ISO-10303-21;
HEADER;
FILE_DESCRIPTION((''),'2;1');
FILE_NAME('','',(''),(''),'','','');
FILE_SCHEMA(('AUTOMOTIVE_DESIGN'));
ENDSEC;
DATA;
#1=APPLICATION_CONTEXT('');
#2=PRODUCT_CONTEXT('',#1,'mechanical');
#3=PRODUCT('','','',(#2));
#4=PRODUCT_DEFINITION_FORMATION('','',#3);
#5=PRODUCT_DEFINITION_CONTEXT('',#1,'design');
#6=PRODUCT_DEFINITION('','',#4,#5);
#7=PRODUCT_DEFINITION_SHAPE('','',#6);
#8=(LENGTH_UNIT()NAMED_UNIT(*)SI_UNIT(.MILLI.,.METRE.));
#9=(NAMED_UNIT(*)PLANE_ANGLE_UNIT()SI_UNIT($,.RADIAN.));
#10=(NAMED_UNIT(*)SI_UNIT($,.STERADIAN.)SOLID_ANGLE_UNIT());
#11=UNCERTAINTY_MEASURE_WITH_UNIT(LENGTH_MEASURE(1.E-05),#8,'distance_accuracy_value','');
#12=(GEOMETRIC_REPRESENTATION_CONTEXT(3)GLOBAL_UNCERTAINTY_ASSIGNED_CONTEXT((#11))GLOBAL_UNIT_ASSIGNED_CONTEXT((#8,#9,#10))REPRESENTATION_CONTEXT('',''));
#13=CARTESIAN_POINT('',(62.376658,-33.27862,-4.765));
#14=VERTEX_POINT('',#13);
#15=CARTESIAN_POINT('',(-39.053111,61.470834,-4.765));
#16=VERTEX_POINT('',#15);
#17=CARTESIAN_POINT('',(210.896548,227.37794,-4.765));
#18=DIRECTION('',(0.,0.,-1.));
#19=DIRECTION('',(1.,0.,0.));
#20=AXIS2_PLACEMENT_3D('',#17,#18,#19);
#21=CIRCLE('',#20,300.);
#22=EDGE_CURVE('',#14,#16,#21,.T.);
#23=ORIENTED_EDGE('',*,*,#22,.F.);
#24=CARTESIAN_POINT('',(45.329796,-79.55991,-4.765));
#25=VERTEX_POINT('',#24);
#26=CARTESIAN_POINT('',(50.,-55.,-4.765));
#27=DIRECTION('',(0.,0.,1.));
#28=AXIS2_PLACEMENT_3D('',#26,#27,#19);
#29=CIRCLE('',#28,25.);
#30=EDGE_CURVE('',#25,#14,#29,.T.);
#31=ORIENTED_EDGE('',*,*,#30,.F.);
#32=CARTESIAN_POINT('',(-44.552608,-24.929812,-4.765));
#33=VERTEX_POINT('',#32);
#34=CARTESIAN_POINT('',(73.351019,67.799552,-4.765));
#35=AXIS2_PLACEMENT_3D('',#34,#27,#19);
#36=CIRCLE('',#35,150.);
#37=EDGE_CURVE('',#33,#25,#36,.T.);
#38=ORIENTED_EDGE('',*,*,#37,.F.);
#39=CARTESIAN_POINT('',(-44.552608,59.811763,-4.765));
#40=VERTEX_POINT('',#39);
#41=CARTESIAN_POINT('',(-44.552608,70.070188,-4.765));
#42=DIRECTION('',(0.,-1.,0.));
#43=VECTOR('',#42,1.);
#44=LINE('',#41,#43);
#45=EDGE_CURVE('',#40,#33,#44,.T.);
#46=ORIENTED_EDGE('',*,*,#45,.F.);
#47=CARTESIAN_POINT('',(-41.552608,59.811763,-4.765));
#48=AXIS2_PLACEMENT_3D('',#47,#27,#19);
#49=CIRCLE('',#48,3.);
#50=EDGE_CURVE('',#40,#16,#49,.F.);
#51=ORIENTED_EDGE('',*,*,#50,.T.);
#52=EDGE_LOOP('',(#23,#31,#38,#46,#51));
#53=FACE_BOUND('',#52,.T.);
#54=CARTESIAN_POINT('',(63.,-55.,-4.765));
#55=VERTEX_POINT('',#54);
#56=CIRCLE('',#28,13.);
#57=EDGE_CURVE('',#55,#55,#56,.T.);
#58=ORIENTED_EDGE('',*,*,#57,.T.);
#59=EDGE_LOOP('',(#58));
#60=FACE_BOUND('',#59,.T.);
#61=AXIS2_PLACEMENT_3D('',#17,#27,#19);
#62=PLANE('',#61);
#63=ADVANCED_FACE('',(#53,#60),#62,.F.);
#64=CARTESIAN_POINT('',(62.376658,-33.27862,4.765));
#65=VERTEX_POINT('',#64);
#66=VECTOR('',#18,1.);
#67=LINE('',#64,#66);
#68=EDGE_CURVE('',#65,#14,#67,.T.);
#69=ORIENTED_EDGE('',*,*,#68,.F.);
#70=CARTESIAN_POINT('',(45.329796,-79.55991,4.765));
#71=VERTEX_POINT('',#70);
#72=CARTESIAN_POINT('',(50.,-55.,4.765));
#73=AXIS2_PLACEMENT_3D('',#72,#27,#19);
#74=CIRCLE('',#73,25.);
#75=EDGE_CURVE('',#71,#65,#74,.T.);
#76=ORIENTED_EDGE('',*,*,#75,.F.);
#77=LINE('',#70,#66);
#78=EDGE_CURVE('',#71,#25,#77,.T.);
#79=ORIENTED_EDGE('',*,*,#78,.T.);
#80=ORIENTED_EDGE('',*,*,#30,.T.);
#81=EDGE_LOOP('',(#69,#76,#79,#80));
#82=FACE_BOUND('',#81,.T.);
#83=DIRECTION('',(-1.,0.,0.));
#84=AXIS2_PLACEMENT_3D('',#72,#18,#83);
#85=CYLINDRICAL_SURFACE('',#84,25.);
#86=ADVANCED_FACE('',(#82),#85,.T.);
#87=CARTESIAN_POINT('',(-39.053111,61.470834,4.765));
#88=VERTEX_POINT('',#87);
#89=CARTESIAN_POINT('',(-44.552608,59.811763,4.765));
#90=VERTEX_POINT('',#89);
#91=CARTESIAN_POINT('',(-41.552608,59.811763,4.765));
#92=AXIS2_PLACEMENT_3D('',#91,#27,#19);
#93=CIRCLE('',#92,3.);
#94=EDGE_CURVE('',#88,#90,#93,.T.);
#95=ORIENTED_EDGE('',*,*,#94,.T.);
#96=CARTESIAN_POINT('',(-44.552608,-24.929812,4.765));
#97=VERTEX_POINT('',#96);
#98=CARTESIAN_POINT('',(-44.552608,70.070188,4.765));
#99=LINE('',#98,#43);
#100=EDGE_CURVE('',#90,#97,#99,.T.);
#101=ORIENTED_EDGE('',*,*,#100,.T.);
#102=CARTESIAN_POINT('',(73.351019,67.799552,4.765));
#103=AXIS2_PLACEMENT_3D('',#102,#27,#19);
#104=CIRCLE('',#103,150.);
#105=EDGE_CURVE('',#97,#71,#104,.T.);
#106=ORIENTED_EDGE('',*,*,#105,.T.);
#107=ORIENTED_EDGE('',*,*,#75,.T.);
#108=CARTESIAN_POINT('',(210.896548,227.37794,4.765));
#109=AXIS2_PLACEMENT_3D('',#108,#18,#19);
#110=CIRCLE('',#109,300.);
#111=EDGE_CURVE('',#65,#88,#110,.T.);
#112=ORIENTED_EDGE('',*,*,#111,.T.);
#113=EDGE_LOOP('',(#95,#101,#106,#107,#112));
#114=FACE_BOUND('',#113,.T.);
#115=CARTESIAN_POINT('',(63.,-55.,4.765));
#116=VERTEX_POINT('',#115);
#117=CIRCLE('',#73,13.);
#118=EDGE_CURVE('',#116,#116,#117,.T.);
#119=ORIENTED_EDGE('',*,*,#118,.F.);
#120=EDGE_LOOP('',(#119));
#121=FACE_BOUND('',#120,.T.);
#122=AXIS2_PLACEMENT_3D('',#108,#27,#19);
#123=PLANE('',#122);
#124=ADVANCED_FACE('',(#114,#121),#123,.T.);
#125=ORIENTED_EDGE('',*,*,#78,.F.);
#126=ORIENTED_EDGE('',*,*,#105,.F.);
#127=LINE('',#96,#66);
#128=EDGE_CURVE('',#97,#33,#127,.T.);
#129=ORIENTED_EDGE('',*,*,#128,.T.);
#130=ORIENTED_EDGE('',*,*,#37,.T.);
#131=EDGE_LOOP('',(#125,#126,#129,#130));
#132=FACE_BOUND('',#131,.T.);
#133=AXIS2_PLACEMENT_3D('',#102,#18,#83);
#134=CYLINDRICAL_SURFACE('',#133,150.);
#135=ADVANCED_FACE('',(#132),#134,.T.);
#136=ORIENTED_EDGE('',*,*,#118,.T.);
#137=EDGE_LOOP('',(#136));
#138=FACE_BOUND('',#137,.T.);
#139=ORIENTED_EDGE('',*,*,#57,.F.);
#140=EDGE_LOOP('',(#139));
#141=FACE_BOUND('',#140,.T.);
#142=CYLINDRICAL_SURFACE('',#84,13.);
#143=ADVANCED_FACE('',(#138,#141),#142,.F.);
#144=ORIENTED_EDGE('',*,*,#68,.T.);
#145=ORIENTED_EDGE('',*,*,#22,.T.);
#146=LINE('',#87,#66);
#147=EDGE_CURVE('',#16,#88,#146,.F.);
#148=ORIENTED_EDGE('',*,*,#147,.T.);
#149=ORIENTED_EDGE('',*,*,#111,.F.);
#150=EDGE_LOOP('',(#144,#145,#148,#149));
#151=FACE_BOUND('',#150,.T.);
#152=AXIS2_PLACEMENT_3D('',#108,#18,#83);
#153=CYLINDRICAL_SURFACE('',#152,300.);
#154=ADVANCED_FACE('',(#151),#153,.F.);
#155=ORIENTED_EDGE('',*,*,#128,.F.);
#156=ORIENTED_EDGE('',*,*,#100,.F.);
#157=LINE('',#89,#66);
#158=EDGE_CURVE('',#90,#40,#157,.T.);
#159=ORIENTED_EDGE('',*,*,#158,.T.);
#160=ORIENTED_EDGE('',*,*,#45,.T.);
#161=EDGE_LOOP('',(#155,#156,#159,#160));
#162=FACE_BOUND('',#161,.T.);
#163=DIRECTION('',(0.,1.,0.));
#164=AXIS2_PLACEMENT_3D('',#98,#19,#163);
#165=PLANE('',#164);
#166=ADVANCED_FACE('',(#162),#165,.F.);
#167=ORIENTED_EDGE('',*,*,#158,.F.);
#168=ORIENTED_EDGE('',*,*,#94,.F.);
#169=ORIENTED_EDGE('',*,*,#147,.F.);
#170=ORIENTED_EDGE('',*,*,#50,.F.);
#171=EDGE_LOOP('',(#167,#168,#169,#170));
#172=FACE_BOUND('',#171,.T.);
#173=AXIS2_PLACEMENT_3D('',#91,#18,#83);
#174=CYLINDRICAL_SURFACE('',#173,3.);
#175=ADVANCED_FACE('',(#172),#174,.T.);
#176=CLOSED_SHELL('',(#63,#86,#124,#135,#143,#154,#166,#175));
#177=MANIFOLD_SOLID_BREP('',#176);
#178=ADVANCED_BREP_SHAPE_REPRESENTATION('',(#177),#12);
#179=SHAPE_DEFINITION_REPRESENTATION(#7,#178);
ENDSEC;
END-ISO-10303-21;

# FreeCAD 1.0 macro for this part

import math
import FreeCAD as App
import Part
import Sketcher
from FreeCAD import Vector
Q = App.Units.Quantity


def edges_at(feature, points):
    """Names of the edges that pass closest to the given points."""
    edges = feature.Shape.Edges
    near = lambda p: min(range(len(edges)), key=lambda i: edges[i].distToShape(Part.Vertex(*p))[0])
    return sorted({f"Edge{near(p) + 1}" for p in points})

doc = App.newDocument("Part")
body = doc.addObject("PartDesign::Body", "Body")

sketch1 = body.newObject("Sketcher::SketchObject", "Sketch")
sketch1.AttachmentSupport = (doc.getObject("XY_Plane"), [""])
sketch1.MapMode = "FlatFace"
sketch1.addGeometry([
    Part.LineSegment(Vector(-45, 70, 0), Vector(-45, -25, 0)),
    Part.ArcOfCircle(Part.Circle(Vector(73, 68, 0), Vector(0, 0, 1), 150), math.radians(-142), math.radians(-101)),
    Part.ArcOfCircle(Part.Circle(Vector(50, -55, 0), Vector(0, 0, 1), 25), math.radians(-101), math.radians(60)),
    Part.ArcOfCircle(Part.Circle(Vector(211, 227, 0), Vector(0, 0, 1), 300), math.radians(-148), math.radians(-120)),
    Part.Circle(Vector(50, -55, 0), Vector(0, 0, 1), 13),
], False)
sketch1.addConstraint([
    Sketcher.Constraint("Coincident", 0, 2, 1, 1),
    Sketcher.Constraint("Tangent", 1, 2, 2, 1),
    Sketcher.Constraint("Tangent", 2, 2, 3, 2),
    Sketcher.Constraint("Coincident", 3, 1, 0, 1),
    Sketcher.Constraint("Vertical", 0),
    Sketcher.Constraint("Coincident", 4, 3, 2, 3),
    Sketcher.Constraint("Diameter", 4, Q("26 mm")),
    Sketcher.Constraint("Radius", 1, Q("150 mm")),
    Sketcher.Constraint("Radius", 2, Q("25 mm")),
    Sketcher.Constraint("Radius", 3, Q("300 mm")),
    Sketcher.Constraint("DistanceY", 0, 2, 0, 1, Q("95 mm")),
    Sketcher.Constraint("DistanceX", -1, 1, 2, 3, Q("50 mm")),
    Sketcher.Constraint("DistanceY", 2, 3, -1, 1, Q("55 mm")),
    Sketcher.Constraint("DistanceY", 1, 2, 0, 2, Q("54.630098 mm")),
    Sketcher.Constraint("DistanceX", -1, 1, 1, 3, Q("73.351019 mm")),
])
pad1 = body.newObject("PartDesign::Pad", "Pad")
pad1.Profile = sketch1
pad1.Length = 9.53
pad1.Midplane = True
doc.recompute()

fillet = body.newObject("PartDesign::Fillet", "Fillet")
fillet.Base = (pad1, edges_at(pad1, [(-44.553, 70.07, 0)]))
fillet.Radius = 3

doc.recompute()
